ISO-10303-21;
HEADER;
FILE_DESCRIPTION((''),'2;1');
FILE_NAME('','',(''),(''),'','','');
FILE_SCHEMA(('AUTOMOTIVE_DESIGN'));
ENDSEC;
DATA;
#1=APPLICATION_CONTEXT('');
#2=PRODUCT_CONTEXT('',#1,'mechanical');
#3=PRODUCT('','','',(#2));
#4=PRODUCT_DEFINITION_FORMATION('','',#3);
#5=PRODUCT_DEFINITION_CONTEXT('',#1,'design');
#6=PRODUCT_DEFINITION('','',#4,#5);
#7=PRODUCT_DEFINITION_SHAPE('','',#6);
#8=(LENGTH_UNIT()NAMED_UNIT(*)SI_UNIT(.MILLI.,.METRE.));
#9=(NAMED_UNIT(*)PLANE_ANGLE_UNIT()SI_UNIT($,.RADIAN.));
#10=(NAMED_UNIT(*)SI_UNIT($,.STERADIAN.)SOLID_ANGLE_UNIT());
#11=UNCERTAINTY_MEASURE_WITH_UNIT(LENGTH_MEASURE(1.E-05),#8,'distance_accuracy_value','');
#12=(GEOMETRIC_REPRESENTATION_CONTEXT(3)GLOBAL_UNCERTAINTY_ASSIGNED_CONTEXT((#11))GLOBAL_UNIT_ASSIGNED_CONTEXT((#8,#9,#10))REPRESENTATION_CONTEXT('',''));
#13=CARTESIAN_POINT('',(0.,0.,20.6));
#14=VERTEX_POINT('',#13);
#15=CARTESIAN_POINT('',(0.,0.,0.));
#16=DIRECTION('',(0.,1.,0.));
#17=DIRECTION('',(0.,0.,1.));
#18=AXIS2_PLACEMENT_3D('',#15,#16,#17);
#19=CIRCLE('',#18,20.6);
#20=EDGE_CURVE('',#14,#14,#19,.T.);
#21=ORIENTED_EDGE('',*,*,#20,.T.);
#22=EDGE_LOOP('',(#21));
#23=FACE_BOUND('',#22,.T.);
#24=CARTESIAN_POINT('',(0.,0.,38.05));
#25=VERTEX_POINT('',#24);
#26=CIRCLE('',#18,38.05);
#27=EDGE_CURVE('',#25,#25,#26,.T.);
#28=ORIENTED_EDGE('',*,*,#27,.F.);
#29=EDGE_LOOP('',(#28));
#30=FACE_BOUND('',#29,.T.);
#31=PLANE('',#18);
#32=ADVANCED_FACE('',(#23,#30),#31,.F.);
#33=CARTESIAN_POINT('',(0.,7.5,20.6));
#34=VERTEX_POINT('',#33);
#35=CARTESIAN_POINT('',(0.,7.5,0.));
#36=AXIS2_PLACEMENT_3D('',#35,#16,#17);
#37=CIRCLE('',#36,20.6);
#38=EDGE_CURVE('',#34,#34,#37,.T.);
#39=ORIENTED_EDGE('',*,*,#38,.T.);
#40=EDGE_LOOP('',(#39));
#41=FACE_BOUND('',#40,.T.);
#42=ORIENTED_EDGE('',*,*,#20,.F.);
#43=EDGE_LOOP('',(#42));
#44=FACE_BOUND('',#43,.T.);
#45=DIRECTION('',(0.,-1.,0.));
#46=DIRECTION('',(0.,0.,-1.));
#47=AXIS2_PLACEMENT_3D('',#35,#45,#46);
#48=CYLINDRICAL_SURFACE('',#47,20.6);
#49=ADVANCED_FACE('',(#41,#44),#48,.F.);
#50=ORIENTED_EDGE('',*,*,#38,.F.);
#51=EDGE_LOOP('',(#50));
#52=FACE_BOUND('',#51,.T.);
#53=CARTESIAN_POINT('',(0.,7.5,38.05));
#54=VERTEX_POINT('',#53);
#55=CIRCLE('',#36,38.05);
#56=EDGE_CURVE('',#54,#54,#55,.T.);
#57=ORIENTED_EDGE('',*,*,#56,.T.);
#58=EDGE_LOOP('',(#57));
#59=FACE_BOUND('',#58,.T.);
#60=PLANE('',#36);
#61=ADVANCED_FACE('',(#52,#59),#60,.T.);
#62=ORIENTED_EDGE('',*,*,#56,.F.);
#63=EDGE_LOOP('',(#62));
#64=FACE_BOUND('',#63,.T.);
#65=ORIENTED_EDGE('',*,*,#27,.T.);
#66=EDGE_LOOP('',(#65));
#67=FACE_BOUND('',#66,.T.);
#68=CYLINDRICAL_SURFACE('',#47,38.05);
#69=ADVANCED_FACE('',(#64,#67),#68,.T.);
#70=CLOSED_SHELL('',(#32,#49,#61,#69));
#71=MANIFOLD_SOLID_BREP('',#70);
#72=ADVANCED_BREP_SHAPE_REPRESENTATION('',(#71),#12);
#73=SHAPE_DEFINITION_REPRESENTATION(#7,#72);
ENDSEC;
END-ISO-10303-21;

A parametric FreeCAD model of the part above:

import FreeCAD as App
import Part
import Sketcher
Q = App.Units.Quantity

doc = App.newDocument("Part")
body = doc.addObject("PartDesign::Body", "Body")

# Sketch on XZ plane
sketch1 = doc.addObject("Sketcher::SketchObject", "Sketch")
body.addObject(sketch1)
sketch1.AttachmentSupport = (doc.XZ_Plane, [""])
sketch1.MapMode = "FlatFace"
sketch1.addGeometry(Part.Circle(App.Vector(0, 0, 0), App.Vector(0, 0, 1), 38), False)
sketch1.addGeometry(Part.Circle(App.Vector(0, 0, 0), App.Vector(0, 0, 1), 21), False)
sketch1.addConstraint(Sketcher.Constraint("Coincident", 0, 3, -1, 1))
sketch1.addConstraint(Sketcher.Constraint("Coincident", 1, 3, -1, 1))
sketch1.addConstraint(Sketcher.Constraint("Diameter", 0, Q("76.1 mm")))
sketch1.addConstraint(Sketcher.Constraint("Diameter", 1, Q("41.2 mm")))
pad1 = doc.addObject("PartDesign::Pad", "Pad")
body.addObject(pad1)
pad1.Profile = sketch1
pad1.Length = 7.5
pad1.Reversed = True

doc.recompute()
